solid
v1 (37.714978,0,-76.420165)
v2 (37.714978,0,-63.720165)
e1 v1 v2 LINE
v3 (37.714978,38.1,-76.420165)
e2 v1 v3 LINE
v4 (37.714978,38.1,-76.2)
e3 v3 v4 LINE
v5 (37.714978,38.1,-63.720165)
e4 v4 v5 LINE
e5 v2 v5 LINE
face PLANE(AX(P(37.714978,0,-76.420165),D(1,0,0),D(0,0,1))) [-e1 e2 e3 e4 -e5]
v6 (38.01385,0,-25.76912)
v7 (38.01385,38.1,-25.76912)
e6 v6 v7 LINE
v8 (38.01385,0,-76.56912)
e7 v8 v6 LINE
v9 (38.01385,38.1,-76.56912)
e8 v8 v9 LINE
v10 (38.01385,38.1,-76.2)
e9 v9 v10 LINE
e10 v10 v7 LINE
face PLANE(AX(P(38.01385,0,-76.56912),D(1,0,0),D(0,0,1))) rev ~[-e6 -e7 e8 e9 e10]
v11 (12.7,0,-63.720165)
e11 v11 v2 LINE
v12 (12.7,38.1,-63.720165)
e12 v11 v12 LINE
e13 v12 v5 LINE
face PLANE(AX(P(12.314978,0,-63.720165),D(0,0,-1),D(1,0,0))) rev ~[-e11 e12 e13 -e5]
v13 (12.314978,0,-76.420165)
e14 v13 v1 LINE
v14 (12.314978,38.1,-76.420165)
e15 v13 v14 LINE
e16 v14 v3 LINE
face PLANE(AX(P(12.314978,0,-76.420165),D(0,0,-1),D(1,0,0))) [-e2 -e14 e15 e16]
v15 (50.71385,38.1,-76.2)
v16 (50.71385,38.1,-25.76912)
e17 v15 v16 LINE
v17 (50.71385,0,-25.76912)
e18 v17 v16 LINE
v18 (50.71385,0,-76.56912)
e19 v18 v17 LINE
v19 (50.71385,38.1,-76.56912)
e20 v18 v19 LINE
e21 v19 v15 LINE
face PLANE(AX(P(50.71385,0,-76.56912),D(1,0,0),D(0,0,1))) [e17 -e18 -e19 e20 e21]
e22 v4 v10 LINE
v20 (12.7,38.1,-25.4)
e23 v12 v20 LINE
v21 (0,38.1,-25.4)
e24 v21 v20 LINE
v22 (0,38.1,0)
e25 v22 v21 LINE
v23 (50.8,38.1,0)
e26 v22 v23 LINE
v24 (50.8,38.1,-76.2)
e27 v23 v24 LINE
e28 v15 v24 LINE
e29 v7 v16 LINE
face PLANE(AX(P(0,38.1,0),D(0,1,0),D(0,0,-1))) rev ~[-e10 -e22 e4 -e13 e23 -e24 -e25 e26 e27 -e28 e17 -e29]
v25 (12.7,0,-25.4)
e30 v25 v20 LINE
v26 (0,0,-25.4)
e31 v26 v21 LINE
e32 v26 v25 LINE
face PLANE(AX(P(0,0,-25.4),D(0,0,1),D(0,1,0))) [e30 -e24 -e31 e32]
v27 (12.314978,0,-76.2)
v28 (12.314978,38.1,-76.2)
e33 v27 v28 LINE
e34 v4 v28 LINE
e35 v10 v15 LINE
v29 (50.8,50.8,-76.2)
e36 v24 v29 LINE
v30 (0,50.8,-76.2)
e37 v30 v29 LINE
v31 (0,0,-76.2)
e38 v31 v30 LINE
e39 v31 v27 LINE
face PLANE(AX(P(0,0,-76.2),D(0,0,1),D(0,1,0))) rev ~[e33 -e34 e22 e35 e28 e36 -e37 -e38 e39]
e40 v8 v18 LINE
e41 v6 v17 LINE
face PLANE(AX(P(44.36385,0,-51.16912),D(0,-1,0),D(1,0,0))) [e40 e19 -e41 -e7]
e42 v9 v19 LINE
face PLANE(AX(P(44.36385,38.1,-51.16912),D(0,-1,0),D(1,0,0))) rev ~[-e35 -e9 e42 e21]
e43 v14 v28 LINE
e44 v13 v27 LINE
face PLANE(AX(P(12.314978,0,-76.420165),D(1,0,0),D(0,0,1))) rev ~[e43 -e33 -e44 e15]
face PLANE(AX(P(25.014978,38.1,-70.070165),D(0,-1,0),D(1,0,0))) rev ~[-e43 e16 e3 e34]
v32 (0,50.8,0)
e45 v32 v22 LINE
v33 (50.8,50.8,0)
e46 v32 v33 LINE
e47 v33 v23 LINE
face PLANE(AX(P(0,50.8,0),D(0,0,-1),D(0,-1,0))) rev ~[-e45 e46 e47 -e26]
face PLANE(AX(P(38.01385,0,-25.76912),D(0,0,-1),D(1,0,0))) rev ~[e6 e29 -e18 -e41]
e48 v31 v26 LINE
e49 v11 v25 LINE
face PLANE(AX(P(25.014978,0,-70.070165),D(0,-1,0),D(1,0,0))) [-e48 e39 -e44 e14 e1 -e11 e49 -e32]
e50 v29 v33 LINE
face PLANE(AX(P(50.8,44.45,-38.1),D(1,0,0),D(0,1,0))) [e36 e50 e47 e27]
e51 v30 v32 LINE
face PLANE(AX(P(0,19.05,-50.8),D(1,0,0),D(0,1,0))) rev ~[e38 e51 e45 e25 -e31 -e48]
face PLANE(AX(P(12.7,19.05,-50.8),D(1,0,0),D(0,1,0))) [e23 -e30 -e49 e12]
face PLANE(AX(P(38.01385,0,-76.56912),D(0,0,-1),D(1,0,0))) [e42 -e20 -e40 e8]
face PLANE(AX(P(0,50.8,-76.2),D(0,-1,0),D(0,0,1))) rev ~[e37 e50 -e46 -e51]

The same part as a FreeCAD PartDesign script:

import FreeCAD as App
import Part
import Sketcher

V = App.Vector
Q = App.Units.Quantity


def add_polygon(sketch, points):
    """Adds a closed chain of lines whose ends are joined by coincident constraints."""
    first, n = sketch.GeometryCount, len(points)
    for a, b in zip(points, points[1:] + points[:1]):
        sketch.addGeometry(Part.LineSegment(App.Vector(*a, 0), App.Vector(*b, 0)), False)
    for i in range(n):
        sketch.addConstraint(Sketcher.Constraint("Coincident", first + i, 2, first + (i + 1) % n, 1))

doc = App.newDocument("Part")
params = doc.addObject("Spreadsheet::Sheet", "Params")
for row, (alias, value) in enumerate([
    ("sketch1_height", "3 in"),
    ("sketch1_width", "0.5 in"),
    ("pad1_length", "2 in"),
    ("sketch2_height", "2 in"),
    ("sketch2_width", "1.5 in"),
    ("pad2_length", "0.5 in"),
    ("sketch3_width", "1 in"),
    ("sketch3_height", "0.5 in"),
    ("pad3_length", "1.5 in"),
    ("sketch4_height", "2 in"),
    ("sketch4_width", "0.5 in"),
    ("pad4_length", "1.5 in"),
], start=1):
    params.set(f"A{row}", alias)
    params.set(f"B{row}", "=" + value)
    params.setAlias(f"B{row}", alias)

body = doc.addObject("PartDesign::Body", "Body")

# Sketch on YZ plane
sketch1 = doc.addObject("Sketcher::SketchObject", "Sketch")
body.addObject(sketch1)
sketch1.AttachmentSupport = (doc.YZ_Plane, [""])
sketch1.MapMode = "FlatFace"
add_polygon(sketch1, [(38, 0), (38, -76), (51, -76), (51, 0)])  # lines 0-3
sketch1.addConstraint(Sketcher.Constraint("Vertical", 0))
sketch1.addConstraint(Sketcher.Constraint("Horizontal", 1))
sketch1.addConstraint(Sketcher.Constraint("Vertical", 2))
sketch1.addConstraint(Sketcher.Constraint("Horizontal", 3))
sketch1.addConstraint(Sketcher.Constraint("PointOnObject", 2, 2, -1))
sketch1.addConstraint(Sketcher.Constraint("DistanceY", 0, 2, 0, 1, Q("3 in")))
sketch1.addConstraint(Sketcher.Constraint("DistanceX", 1, 1, 1, 2, Q("0.5 in")))
sketch1.addConstraint(Sketcher.Constraint("DistanceX", -1, 1, 1, 2, Q("2 in")))
sketch1.setExpression("Constraints[9]", "Params.sketch1_height")
sketch1.setExpression("Constraints[10]", "Params.sketch1_width")
pad1 = doc.addObject("PartDesign::Pad", "Pad")
body.addObject(pad1)
pad1.Profile = sketch1
pad1.setExpression("Length", "Params.pad1_length")

# Sketch on YZ plane
sketch2 = doc.addObject("Sketcher::SketchObject", "Sketch001")
body.addObject(sketch2)
sketch2.AttachmentSupport = (doc.YZ_Plane, [""])
sketch2.MapMode = "FlatFace"
add_polygon(sketch2, [(0, -25), (0, -76), (38, -76), (38, -25)])  # lines 0-3
sketch2.addConstraint(Sketcher.Constraint("Vertical", 0))
sketch2.addConstraint(Sketcher.Constraint("Horizontal", 1))
sketch2.addConstraint(Sketcher.Constraint("Vertical", 2))
sketch2.addConstraint(Sketcher.Constraint("Horizontal", 3))
sketch2.addConstraint(Sketcher.Constraint("PointOnObject", 0, 2, -2))
sketch2.addConstraint(Sketcher.Constraint("DistanceY", 0, 2, 0, 1, Q("2 in")))
sketch2.addConstraint(Sketcher.Constraint("DistanceX", 1, 1, 1, 2, Q("1.5 in")))
sketch2.addConstraint(Sketcher.Constraint("DistanceY", 0, 2, -1, 1, Q("3 in")))
sketch2.setExpression("Constraints[9]", "Params.sketch2_height")
sketch2.setExpression("Constraints[10]", "Params.sketch2_width")
pad2 = doc.addObject("PartDesign::Pad", "Pad001")
body.addObject(pad2)
pad2.Profile = sketch2
pad2.setExpression("Length", "Params.pad2_length")

# Sketch on XZ plane
sketch3 = doc.addObject("Sketcher::SketchObject", "Sketch002")
body.addObject(sketch3)
sketch3.AttachmentSupport = (doc.XZ_Plane, [""])
sketch3.MapMode = "FlatFace"
add_polygon(sketch3, [(12, -64), (12, -76), (38, -76), (38, -64)])  # lines 0-3
sketch3.addConstraint(Sketcher.Constraint("Vertical", 0))
sketch3.addConstraint(Sketcher.Constraint("Horizontal", 1))
sketch3.addConstraint(Sketcher.Constraint("Vertical", 2))
sketch3.addConstraint(Sketcher.Constraint("Horizontal", 3))
sketch3.addConstraint(Sketcher.Constraint("DistanceX", 1, 1, 1, 2, Q("1 in")))
sketch3.addConstraint(Sketcher.Constraint("DistanceY", 0, 2, 0, 1, Q("0.5 in")))
sketch3.addConstraint(Sketcher.Constraint("DistanceX", -1, 1, 1, 2, 37.714978))
sketch3.addConstraint(Sketcher.Constraint("DistanceY", 0, 2, -1, 1, 76.420165))
sketch3.setExpression("Constraints[8]", "Params.sketch3_width")
sketch3.setExpression("Constraints[9]", "Params.sketch3_height")
pad3 = doc.addObject("PartDesign::Pad", "Pad002")
body.addObject(pad3)
pad3.Profile = sketch3
pad3.setExpression("Length", "Params.pad3_length")
pad3.Reversed = True

# Sketch on XZ plane
sketch4 = doc.addObject("Sketcher::SketchObject", "Sketch003")
body.addObject(sketch4)
sketch4.AttachmentSupport = (doc.XZ_Plane, [""])
sketch4.MapMode = "FlatFace"
add_polygon(sketch4, [(38, -26), (38, -77), (51, -77), (51, -26)])  # lines 0-3
sketch4.addConstraint(Sketcher.Constraint("Vertical", 0))
sketch4.addConstraint(Sketcher.Constraint("Horizontal", 1))
sketch4.addConstraint(Sketcher.Constraint("Vertical", 2))
sketch4.addConstraint(Sketcher.Constraint("Horizontal", 3))
sketch4.addConstraint(Sketcher.Constraint("DistanceY", 0, 2, 0, 1, Q("2 in")))
sketch4.addConstraint(Sketcher.Constraint("DistanceX", 1, 1, 1, 2, Q("0.5 in")))
sketch4.addConstraint(Sketcher.Constraint("DistanceX", -1, 1, 0, 2, 38.01385))
sketch4.addConstraint(Sketcher.Constraint("DistanceY", 0, 2, -1, 1, 76.56912))
sketch4.setExpression("Constraints[8]", "Params.sketch4_height")
sketch4.setExpression("Constraints[9]", "Params.sketch4_width")
pad4 = doc.addObject("PartDesign::Pad", "Pad003")
body.addObject(pad4)
pad4.Profile = sketch4
pad4.setExpression("Length", "Params.pad4_length")
pad4.Reversed = True

doc.recompute()
